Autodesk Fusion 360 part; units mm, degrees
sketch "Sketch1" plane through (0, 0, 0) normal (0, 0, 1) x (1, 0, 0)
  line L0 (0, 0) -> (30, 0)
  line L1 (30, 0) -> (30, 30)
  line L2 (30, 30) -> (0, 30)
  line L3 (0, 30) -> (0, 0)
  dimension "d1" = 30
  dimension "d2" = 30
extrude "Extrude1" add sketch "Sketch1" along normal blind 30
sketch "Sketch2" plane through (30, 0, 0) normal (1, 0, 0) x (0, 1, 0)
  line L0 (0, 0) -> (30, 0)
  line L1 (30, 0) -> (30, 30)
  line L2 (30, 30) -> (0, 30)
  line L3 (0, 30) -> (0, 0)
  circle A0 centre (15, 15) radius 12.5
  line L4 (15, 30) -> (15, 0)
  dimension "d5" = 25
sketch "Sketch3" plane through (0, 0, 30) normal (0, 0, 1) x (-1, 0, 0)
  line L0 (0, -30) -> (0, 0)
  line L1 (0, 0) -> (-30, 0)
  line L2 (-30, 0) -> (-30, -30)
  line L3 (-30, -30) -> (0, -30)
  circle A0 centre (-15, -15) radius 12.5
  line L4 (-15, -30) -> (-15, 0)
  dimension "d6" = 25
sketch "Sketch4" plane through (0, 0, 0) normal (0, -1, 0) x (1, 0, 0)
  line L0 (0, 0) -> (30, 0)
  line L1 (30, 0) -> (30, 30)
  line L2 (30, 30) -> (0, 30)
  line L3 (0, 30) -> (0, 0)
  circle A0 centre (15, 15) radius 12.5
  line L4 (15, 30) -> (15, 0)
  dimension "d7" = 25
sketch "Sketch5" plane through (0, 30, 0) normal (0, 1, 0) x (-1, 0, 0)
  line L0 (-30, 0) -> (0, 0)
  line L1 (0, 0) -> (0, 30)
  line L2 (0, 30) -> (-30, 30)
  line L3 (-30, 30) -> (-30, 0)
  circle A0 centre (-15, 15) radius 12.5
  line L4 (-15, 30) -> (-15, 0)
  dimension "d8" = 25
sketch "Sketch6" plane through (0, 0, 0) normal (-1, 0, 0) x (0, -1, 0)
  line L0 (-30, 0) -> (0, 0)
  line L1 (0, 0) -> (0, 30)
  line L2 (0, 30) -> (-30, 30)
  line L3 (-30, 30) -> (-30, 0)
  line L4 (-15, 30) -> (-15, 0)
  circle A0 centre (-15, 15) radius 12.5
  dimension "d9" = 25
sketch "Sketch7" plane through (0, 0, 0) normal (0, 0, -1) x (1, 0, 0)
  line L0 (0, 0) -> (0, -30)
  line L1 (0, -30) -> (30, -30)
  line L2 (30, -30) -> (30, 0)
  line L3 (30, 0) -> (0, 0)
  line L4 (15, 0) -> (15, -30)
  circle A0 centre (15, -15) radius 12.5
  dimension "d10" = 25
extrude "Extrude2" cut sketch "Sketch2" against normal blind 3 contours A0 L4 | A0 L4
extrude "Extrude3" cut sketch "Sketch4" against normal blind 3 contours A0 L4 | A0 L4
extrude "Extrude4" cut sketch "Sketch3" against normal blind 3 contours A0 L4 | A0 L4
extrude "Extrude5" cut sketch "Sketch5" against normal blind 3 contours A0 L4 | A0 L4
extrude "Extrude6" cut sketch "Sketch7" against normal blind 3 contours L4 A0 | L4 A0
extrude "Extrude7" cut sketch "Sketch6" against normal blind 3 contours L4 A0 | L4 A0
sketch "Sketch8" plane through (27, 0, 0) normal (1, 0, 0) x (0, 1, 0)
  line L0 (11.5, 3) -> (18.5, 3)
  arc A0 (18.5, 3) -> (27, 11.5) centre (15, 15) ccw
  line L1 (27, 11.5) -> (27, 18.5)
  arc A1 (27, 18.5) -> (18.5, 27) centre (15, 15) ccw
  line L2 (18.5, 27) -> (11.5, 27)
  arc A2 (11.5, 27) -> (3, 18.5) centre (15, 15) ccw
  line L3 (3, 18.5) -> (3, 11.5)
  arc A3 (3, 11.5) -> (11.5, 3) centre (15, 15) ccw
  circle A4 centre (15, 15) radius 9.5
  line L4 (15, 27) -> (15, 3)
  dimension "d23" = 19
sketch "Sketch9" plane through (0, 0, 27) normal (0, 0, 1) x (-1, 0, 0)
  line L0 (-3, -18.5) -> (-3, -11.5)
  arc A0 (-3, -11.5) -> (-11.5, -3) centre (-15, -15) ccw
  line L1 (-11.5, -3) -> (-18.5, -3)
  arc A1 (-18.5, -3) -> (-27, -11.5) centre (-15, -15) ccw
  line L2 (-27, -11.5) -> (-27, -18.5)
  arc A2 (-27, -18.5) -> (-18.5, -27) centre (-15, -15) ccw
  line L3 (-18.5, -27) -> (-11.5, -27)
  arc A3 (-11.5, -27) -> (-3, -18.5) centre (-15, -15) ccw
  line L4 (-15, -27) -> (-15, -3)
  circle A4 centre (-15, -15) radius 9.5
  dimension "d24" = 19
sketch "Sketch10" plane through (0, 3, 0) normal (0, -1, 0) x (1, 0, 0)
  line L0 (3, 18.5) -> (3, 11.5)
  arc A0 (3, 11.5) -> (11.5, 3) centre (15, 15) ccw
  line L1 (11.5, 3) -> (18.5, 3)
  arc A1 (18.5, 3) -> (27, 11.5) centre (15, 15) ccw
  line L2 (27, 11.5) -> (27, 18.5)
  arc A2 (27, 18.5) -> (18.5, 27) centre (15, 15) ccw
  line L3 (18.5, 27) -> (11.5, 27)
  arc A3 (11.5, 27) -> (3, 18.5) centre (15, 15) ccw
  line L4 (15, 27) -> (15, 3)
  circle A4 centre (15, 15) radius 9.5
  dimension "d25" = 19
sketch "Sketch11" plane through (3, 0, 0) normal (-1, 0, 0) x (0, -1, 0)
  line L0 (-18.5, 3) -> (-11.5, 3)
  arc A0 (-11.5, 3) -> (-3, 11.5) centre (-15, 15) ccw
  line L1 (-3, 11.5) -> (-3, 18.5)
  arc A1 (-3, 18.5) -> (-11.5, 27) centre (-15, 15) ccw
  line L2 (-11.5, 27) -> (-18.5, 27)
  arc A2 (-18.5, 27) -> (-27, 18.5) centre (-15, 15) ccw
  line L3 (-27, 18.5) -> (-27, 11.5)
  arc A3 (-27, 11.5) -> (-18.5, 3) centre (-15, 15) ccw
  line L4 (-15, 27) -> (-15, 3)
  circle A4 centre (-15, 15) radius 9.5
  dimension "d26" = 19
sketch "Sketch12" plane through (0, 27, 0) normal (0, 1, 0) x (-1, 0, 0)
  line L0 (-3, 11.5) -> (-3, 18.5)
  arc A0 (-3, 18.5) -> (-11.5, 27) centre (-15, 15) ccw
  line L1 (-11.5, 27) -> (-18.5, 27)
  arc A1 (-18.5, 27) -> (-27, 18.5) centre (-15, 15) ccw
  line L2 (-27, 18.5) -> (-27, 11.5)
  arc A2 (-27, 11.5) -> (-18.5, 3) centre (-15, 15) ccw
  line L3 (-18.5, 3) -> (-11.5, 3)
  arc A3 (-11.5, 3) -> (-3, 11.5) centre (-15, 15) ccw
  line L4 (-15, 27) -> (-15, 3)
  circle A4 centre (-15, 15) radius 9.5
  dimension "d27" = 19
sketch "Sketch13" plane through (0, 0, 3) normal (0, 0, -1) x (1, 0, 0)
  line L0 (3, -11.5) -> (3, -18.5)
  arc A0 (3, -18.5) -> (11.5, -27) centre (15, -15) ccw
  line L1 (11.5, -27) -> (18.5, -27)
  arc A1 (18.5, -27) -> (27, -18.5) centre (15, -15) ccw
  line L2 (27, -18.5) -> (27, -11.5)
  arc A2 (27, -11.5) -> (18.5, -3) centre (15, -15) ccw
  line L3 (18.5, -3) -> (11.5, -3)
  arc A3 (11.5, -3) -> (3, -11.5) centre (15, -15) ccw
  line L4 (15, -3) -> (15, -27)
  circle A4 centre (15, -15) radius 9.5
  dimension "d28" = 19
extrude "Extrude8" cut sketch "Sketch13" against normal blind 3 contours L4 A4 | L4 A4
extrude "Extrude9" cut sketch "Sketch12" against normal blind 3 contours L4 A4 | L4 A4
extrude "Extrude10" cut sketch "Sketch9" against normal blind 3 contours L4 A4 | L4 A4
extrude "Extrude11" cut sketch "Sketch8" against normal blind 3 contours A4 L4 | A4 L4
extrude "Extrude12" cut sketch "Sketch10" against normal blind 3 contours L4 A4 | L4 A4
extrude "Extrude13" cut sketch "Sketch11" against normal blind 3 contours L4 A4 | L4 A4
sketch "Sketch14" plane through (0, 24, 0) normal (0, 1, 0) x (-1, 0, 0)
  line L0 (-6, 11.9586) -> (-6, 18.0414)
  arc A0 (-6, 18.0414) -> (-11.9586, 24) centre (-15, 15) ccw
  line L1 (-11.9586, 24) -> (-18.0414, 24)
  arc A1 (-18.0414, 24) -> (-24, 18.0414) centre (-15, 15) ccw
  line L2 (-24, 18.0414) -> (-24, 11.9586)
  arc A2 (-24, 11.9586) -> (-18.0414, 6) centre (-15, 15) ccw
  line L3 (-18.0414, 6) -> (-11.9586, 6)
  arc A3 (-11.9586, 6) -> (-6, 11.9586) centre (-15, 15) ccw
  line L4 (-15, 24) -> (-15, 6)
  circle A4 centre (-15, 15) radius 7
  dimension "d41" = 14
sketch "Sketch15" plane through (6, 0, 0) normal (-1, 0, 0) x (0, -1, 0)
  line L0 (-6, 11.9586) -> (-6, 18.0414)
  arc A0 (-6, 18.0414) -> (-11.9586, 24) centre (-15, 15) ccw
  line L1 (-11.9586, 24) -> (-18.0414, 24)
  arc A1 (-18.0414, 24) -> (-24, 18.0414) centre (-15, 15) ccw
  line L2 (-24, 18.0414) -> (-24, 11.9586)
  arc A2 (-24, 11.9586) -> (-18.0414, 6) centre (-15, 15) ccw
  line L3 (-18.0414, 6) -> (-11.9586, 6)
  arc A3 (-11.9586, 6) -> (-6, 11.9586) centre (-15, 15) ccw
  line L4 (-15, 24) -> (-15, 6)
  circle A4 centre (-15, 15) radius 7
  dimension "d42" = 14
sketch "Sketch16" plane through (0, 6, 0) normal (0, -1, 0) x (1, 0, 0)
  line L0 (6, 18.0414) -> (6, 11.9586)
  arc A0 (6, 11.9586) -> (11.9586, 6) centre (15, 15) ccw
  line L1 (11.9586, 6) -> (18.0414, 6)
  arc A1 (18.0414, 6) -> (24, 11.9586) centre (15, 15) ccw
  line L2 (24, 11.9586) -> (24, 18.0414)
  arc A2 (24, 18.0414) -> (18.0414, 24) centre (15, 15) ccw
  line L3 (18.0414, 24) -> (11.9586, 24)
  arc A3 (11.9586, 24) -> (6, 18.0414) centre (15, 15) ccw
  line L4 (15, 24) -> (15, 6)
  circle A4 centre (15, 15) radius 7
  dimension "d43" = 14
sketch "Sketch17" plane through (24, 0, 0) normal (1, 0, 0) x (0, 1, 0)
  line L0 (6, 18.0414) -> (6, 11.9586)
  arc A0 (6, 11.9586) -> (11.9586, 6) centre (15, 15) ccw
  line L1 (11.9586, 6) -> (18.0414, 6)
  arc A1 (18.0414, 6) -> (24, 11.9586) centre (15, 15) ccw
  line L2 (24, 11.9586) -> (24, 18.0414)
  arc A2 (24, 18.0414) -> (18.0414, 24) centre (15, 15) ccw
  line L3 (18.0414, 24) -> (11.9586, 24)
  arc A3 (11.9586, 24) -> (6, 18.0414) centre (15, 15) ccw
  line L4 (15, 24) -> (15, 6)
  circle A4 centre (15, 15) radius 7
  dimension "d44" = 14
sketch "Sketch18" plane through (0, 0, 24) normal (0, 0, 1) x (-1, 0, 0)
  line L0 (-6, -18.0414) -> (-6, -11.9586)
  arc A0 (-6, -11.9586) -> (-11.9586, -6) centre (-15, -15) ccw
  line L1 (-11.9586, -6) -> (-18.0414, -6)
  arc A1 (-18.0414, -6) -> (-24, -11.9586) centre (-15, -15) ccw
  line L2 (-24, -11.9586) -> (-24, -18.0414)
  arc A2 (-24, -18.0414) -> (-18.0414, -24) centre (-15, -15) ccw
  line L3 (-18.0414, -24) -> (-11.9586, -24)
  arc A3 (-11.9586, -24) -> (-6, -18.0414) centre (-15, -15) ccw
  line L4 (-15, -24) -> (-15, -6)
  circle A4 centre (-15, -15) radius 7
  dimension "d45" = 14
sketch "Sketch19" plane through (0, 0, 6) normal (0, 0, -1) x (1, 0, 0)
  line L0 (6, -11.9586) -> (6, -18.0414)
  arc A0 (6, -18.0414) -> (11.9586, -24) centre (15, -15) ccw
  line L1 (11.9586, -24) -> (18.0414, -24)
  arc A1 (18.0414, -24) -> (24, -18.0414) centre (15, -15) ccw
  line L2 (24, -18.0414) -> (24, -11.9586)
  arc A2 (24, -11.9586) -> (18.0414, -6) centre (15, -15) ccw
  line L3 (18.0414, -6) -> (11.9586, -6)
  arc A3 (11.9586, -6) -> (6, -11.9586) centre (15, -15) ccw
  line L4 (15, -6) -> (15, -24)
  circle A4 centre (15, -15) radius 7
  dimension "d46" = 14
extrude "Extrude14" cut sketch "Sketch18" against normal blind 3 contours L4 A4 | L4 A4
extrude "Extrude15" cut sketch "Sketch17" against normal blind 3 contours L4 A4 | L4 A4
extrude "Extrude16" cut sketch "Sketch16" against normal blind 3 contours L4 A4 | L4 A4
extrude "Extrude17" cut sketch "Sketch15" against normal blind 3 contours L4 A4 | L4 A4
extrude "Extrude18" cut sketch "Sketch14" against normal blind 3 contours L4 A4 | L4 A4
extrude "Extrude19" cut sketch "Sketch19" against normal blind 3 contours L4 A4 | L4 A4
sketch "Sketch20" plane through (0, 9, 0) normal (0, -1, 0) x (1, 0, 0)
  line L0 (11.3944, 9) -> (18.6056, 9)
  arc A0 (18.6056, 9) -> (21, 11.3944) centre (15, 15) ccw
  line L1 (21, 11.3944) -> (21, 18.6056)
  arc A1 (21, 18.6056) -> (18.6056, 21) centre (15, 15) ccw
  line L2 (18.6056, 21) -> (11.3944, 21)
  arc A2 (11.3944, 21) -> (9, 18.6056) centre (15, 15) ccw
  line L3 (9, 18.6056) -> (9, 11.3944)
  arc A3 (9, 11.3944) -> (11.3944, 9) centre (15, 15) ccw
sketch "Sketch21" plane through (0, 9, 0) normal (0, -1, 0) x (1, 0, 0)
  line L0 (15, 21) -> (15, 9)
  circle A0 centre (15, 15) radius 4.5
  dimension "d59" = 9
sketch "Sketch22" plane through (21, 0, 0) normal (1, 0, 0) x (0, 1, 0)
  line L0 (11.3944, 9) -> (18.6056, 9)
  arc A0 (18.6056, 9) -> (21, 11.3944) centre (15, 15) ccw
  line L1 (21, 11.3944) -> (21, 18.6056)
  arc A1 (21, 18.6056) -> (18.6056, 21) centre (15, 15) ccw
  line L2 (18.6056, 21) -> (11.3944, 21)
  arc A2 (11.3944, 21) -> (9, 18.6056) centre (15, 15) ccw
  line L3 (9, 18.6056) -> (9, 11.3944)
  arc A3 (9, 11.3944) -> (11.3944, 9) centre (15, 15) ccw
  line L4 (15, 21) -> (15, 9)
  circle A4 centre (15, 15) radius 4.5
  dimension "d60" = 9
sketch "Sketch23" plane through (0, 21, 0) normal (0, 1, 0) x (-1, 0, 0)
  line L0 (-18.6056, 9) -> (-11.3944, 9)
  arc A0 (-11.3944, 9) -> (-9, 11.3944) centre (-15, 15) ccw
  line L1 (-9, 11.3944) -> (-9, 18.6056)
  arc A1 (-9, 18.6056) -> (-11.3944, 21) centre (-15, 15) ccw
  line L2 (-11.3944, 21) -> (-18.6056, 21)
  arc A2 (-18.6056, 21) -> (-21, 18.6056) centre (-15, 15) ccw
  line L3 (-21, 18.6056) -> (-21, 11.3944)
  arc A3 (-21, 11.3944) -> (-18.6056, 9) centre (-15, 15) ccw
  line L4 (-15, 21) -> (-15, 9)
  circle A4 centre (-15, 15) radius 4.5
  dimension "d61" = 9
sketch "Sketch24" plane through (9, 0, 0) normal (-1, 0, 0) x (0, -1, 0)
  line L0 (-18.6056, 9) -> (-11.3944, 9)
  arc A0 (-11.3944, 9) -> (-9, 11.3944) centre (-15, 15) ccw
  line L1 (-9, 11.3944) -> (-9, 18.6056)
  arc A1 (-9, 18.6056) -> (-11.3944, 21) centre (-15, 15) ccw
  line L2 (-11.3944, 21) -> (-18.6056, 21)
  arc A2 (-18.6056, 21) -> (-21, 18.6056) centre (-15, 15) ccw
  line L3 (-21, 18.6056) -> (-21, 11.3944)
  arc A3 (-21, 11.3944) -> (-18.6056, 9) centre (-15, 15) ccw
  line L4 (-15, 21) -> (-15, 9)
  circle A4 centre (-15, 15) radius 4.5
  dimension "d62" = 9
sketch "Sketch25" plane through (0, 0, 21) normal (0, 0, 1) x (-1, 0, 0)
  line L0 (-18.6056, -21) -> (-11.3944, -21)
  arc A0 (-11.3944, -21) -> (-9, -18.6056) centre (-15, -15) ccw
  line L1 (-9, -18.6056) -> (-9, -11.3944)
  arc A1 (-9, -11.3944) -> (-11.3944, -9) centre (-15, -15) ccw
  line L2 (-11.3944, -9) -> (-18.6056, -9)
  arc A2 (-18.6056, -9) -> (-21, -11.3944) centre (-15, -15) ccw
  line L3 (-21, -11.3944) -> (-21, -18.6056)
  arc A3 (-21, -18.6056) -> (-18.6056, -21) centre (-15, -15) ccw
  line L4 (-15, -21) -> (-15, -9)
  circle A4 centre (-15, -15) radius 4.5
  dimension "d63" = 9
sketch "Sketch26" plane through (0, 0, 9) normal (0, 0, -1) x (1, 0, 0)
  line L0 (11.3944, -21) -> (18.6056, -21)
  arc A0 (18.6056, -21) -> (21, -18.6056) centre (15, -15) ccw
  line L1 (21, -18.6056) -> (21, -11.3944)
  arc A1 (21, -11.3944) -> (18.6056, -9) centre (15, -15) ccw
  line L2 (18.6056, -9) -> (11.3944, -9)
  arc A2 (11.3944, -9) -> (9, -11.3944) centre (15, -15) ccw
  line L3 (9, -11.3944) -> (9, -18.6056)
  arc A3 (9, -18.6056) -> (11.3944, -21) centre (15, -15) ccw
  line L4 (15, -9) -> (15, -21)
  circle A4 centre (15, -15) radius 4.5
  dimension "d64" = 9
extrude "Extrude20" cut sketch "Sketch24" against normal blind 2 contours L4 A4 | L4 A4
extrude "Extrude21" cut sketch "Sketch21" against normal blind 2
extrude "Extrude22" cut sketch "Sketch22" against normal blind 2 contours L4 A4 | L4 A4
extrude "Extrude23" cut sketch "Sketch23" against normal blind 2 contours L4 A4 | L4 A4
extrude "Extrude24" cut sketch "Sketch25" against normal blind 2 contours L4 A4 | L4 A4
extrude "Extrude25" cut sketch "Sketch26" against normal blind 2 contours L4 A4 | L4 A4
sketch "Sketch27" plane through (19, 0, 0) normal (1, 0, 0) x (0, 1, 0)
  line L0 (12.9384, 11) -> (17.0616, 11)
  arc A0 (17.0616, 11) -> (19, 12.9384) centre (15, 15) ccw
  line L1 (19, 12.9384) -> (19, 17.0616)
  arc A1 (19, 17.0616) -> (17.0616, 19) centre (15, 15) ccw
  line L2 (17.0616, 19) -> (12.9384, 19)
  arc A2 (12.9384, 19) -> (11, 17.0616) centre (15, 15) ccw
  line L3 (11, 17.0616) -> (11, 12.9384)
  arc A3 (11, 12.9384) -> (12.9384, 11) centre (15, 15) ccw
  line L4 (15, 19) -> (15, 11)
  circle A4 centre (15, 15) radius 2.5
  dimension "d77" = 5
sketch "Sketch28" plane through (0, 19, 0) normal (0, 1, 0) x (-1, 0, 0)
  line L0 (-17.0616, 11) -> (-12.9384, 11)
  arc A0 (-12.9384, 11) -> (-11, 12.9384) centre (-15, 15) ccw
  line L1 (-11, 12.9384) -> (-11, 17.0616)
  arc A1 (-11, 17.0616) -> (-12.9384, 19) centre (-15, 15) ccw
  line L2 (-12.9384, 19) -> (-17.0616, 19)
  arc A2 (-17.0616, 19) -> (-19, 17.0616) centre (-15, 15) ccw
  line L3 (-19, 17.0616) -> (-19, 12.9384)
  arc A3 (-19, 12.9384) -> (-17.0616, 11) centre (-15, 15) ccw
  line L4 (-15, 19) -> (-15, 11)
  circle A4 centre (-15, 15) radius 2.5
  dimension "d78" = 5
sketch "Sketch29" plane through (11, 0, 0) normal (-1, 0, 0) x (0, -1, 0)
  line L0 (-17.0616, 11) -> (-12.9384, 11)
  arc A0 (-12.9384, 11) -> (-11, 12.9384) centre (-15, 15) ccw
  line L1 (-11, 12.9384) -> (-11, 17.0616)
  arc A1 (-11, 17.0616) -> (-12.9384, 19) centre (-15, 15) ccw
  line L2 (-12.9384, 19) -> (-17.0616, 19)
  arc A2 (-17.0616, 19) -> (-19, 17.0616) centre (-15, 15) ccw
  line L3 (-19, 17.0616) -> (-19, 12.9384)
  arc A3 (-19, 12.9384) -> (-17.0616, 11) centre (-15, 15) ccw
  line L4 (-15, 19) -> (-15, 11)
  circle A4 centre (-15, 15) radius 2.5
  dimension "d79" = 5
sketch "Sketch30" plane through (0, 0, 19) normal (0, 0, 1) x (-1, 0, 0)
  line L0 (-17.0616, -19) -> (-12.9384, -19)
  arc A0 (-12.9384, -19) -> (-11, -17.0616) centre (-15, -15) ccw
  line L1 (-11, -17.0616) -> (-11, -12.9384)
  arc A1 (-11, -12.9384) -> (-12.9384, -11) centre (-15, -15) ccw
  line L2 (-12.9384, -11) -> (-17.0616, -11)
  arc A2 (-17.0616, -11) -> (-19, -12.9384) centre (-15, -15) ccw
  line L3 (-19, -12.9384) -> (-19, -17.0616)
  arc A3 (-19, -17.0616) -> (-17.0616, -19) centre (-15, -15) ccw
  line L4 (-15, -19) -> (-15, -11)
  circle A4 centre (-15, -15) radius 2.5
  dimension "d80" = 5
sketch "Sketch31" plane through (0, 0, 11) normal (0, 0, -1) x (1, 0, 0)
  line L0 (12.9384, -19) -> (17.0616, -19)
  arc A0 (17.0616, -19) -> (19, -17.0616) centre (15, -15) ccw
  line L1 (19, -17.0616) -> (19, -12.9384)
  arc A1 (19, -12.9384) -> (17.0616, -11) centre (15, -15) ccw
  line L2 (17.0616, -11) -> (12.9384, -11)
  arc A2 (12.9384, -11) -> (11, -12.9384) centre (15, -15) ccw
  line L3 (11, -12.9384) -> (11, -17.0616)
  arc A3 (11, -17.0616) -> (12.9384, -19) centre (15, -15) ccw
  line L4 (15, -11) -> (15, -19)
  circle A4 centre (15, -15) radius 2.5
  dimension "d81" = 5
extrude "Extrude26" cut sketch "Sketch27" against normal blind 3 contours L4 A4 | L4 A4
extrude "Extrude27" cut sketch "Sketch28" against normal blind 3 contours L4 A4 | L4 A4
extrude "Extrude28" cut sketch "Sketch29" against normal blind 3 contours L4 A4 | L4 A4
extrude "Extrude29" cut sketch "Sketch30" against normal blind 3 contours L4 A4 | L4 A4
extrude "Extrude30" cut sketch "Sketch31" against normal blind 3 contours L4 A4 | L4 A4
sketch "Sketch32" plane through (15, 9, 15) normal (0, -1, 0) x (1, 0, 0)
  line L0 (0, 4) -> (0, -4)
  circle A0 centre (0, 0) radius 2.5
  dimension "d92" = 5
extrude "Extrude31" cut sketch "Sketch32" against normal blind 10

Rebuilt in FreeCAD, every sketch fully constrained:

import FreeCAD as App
import Part
import Sketcher
from FreeCAD import Vector

doc = App.newDocument("Part")
body = doc.addObject("PartDesign::Body", "Body")

# Sketch on XY plane
sketch1 = body.newObject("Sketcher::SketchObject", "Sketch")
sketch1.AttachmentSupport = (doc.getObject("XY_Plane"), [""])
sketch1.MapMode = "FlatFace"
sketch1.addGeometry([
    Part.LineSegment(Vector(0, 30, 0), Vector(0, 0, 0)),
    Part.LineSegment(Vector(0, 0, 0), Vector(30, 0, 0)),
    Part.LineSegment(Vector(30, 0, 0), Vector(30, 30, 0)),
    Part.LineSegment(Vector(30, 30, 0), Vector(0, 30, 0)),
], False)
sketch1.addConstraint([
    Sketcher.Constraint("Coincident", 0, 2, 1, 1),
    Sketcher.Constraint("Coincident", 1, 2, 2, 1),
    Sketcher.Constraint("Coincident", 2, 2, 3, 1),
    Sketcher.Constraint("Coincident", 3, 2, 0, 1),
    Sketcher.Constraint("Vertical", 0),
    Sketcher.Constraint("Horizontal", 1),
    Sketcher.Constraint("Vertical", 2),
    Sketcher.Constraint("Horizontal", 3),
    Sketcher.Constraint("Coincident", 0, 2, -1, 1),
    Sketcher.Constraint("Equal", 3, 0),
    Sketcher.Constraint("DistanceX", 1, 1, 1, 2, 30.0),
])
pad1 = body.newObject("PartDesign::Pad", "Pad")
pad1.Profile = sketch1
pad1.Length = 30

# Sketch on YZ plane
sketch2 = body.newObject("Sketcher::SketchObject", "Sketch001")
sketch2.AttachmentSupport = (doc.getObject("YZ_Plane"), [""])
sketch2.MapMode = "FlatFace"
sketch2.AttachmentOffset = App.Placement(Vector(0, 0, 30), App.Rotation())
sketch2.addGeometry(Part.Circle(Vector(15, 15, 0), Vector(0, 0, 1), 12), False)
sketch2.addConstraint([
    Sketcher.Constraint("Diameter", 0, 25.0),
    Sketcher.Constraint("DistanceX", -1, 1, 0, 3, 15.0),
    Sketcher.Constraint("DistanceY", -1, 1, 0, 3, 15.0),
])
pocket1 = body.newObject("PartDesign::Pocket", "Pocket")
pocket1.Profile = sketch2
pocket1.Length = 3

# Sketch on XZ plane
sketch3 = body.newObject("Sketcher::SketchObject", "Sketch002")
sketch3.AttachmentSupport = (doc.getObject("XZ_Plane"), [""])
sketch3.MapMode = "FlatFace"
sketch3.addGeometry(Part.Circle(Vector(15, 15, 0), Vector(0, 0, 1), 12), False)
sketch3.addConstraint([
    Sketcher.Constraint("Diameter", 0, 25.0),
    Sketcher.Constraint("DistanceX", -1, 1, 0, 3, 15.0),
    Sketcher.Constraint("DistanceY", -1, 1, 0, 3, 15.0),
])
pocket2 = body.newObject("PartDesign::Pocket", "Pocket001")
pocket2.Profile = sketch3
pocket2.Length = 3

# Sketch on XY plane
sketch4 = body.newObject("Sketcher::SketchObject", "Sketch003")
sketch4.AttachmentSupport = (doc.getObject("XY_Plane"), [""])
sketch4.MapMode = "FlatFace"
sketch4.AttachmentOffset = App.Placement(Vector(0, 0, 30), App.Rotation())
sketch4.addGeometry(Part.Circle(Vector(15, 15, 0), Vector(0, 0, 1), 12), False)
sketch4.addConstraint([
    Sketcher.Constraint("Diameter", 0, 25.0),
    Sketcher.Constraint("DistanceX", -1, 1, 0, 3, 15.0),
    Sketcher.Constraint("DistanceY", -1, 1, 0, 3, 15.0),
])
pocket3 = body.newObject("PartDesign::Pocket", "Pocket002")
pocket3.Profile = sketch4
pocket3.Length = 3

# Sketch on XZ plane
sketch5 = body.newObject("Sketcher::SketchObject", "Sketch004")
sketch5.AttachmentSupport = (doc.getObject("XZ_Plane"), [""])
sketch5.MapMode = "FlatFace"
sketch5.AttachmentOffset = App.Placement(Vector(0, 0, -30), App.Rotation())
sketch5.addGeometry(Part.Circle(Vector(15, 15, 0), Vector(0, 0, 1), 12), False)
sketch5.addConstraint([
    Sketcher.Constraint("Diameter", 0, 25.0),
    Sketcher.Constraint("DistanceX", -1, 1, 0, 3, 15.0),
    Sketcher.Constraint("DistanceY", -1, 1, 0, 3, 15.0),
])
pocket4 = body.newObject("PartDesign::Pocket", "Pocket003")
pocket4.Profile = sketch5
pocket4.Length = 3
pocket4.Reversed = True

# Sketch on XY plane
sketch6 = body.newObject("Sketcher::SketchObject", "Sketch005")
sketch6.AttachmentSupport = (doc.getObject("XY_Plane"), [""])
sketch6.MapMode = "FlatFace"
sketch6.addGeometry(Part.Circle(Vector(15, 15, 0), Vector(0, 0, 1), 12), False)
sketch6.addConstraint([
    Sketcher.Constraint("Diameter", 0, 25.0),
    Sketcher.Constraint("DistanceX", -1, 1, 0, 3, 15.0),
    Sketcher.Constraint("DistanceY", -1, 1, 0, 3, 15.0),
])
pocket5 = body.newObject("PartDesign::Pocket", "Pocket004")
pocket5.Profile = sketch6
pocket5.Length = 3
pocket5.Reversed = True

# Sketch on YZ plane
sketch7 = body.newObject("Sketcher::SketchObject", "Sketch006")
sketch7.AttachmentSupport = (doc.getObject("YZ_Plane"), [""])
sketch7.MapMode = "FlatFace"
sketch7.addGeometry(Part.Circle(Vector(15, 15, 0), Vector(0, 0, 1), 12), False)
sketch7.addConstraint([
    Sketcher.Constraint("Diameter", 0, 25.0),
    Sketcher.Constraint("DistanceX", -1, 1, 0, 3, 15.0),
    Sketcher.Constraint("DistanceY", -1, 1, 0, 3, 15.0),
])
pocket6 = body.newObject("PartDesign::Pocket", "Pocket005")
pocket6.Profile = sketch7
pocket6.Length = 3
pocket6.Reversed = True

# Sketch on XY plane
sketch8 = body.newObject("Sketcher::SketchObject", "Sketch007")
sketch8.AttachmentSupport = (doc.getObject("XY_Plane"), [""])
sketch8.MapMode = "FlatFace"
sketch8.AttachmentOffset = App.Placement(Vector(0, 0, 3), App.Rotation())
sketch8.addGeometry(Part.Circle(Vector(15, 15, 0), Vector(0, 0, 1), 10), False)
sketch8.addConstraint([
    Sketcher.Constraint("Diameter", 0, 19.0),
    Sketcher.Constraint("DistanceX", -1, 1, 0, 3, 15.0),
    Sketcher.Constraint("DistanceY", -1, 1, 0, 3, 15.0),
])
pocket7 = body.newObject("PartDesign::Pocket", "Pocket006")
pocket7.Profile = sketch8
pocket7.Length = 3
pocket7.Reversed = True

# Sketch on XZ plane
sketch9 = body.newObject("Sketcher::SketchObject", "Sketch008")
sketch9.AttachmentSupport = (doc.getObject("XZ_Plane"), [""])
sketch9.MapMode = "FlatFace"
sketch9.AttachmentOffset = App.Placement(Vector(0, 0, -27), App.Rotation())
sketch9.addGeometry(Part.Circle(Vector(15, 15, 0), Vector(0, 0, 1), 10), False)
sketch9.addConstraint([
    Sketcher.Constraint("Diameter", 0, 19.0),
    Sketcher.Constraint("DistanceX", -1, 1, 0, 3, 15.0),
    Sketcher.Constraint("DistanceY", -1, 1, 0, 3, 15.0),
])
pocket8 = body.newObject("PartDesign::Pocket", "Pocket007")
pocket8.Profile = sketch9
pocket8.Length = 3
pocket8.Reversed = True

# Sketch on XY plane
sketch10 = body.newObject("Sketcher::SketchObject", "Sketch009")
sketch10.AttachmentSupport = (doc.getObject("XY_Plane"), [""])
sketch10.MapMode = "FlatFace"
sketch10.AttachmentOffset = App.Placement(Vector(0, 0, 27), App.Rotation())
sketch10.addGeometry(Part.Circle(Vector(15, 15, 0), Vector(0, 0, 1), 10), False)
sketch10.addConstraint([
    Sketcher.Constraint("Diameter", 0, 19.0),
    Sketcher.Constraint("DistanceX", -1, 1, 0, 3, 15.0),
    Sketcher.Constraint("DistanceY", -1, 1, 0, 3, 15.0),
])
pocket9 = body.newObject("PartDesign::Pocket", "Pocket008")
pocket9.Profile = sketch10
pocket9.Length = 3

# Sketch on YZ plane
sketch11 = body.newObject("Sketcher::SketchObject", "Sketch010")
sketch11.AttachmentSupport = (doc.getObject("YZ_Plane"), [""])
sketch11.MapMode = "FlatFace"
sketch11.AttachmentOffset = App.Placement(Vector(0, 0, 27), App.Rotation())
sketch11.addGeometry(Part.Circle(Vector(15, 15, 0), Vector(0, 0, 1), 10), False)
sketch11.addConstraint([
    Sketcher.Constraint("Diameter", 0, 19.0),
    Sketcher.Constraint("DistanceX", -1, 1, 0, 3, 15.0),
    Sketcher.Constraint("DistanceY", -1, 1, 0, 3, 15.0),
])
pocket10 = body.newObject("PartDesign::Pocket", "Pocket009")
pocket10.Profile = sketch11
pocket10.Length = 3

# Sketch on XZ plane
sketch12 = body.newObject("Sketcher::SketchObject", "Sketch011")
sketch12.AttachmentSupport = (doc.getObject("XZ_Plane"), [""])
sketch12.MapMode = "FlatFace"
sketch12.AttachmentOffset = App.Placement(Vector(0, 0, -3), App.Rotation())
sketch12.addGeometry(Part.Circle(Vector(15, 15, 0), Vector(0, 0, 1), 10), False)
sketch12.addConstraint([
    Sketcher.Constraint("Diameter", 0, 19.0),
    Sketcher.Constraint("DistanceX", -1, 1, 0, 3, 15.0),
    Sketcher.Constraint("DistanceY", -1, 1, 0, 3, 15.0),
])
pocket11 = body.newObject("PartDesign::Pocket", "Pocket010")
pocket11.Profile = sketch12
pocket11.Length = 3

# Sketch on YZ plane
sketch13 = body.newObject("Sketcher::SketchObject", "Sketch012")
sketch13.AttachmentSupport = (doc.getObject("YZ_Plane"), [""])
sketch13.MapMode = "FlatFace"
sketch13.AttachmentOffset = App.Placement(Vector(0, 0, 3), App.Rotation())
sketch13.addGeometry(Part.Circle(Vector(15, 15, 0), Vector(0, 0, 1), 10), False)
sketch13.addConstraint([
    Sketcher.Constraint("Diameter", 0, 19.0),
    Sketcher.Constraint("DistanceX", -1, 1, 0, 3, 15.0),
    Sketcher.Constraint("DistanceY", -1, 1, 0, 3, 15.0),
])
pocket12 = body.newObject("PartDesign::Pocket", "Pocket011")
pocket12.Profile = sketch13
pocket12.Length = 3
pocket12.Reversed = True

# Sketch on XY plane
sketch14 = body.newObject("Sketcher::SketchObject", "Sketch013")
sketch14.AttachmentSupport = (doc.getObject("XY_Plane"), [""])
sketch14.MapMode = "FlatFace"
sketch14.AttachmentOffset = App.Placement(Vector(0, 0, 24), App.Rotation())
sketch14.addGeometry(Part.Circle(Vector(15, 15, 0), Vector(0, 0, 1), 7), False)
sketch14.addConstraint([
    Sketcher.Constraint("Diameter", 0, 14.0),
    Sketcher.Constraint("DistanceX", -1, 1, 0, 3, 15.0),
    Sketcher.Constraint("DistanceY", -1, 1, 0, 3, 15.0),
])
pocket13 = body.newObject("PartDesign::Pocket", "Pocket012")
pocket13.Profile = sketch14
pocket13.Length = 3

# Sketch on YZ plane
sketch15 = body.newObject("Sketcher::SketchObject", "Sketch014")
sketch15.AttachmentSupport = (doc.getObject("YZ_Plane"), [""])
sketch15.MapMode = "FlatFace"
sketch15.AttachmentOffset = App.Placement(Vector(0, 0, 24), App.Rotation())
sketch15.addGeometry(Part.Circle(Vector(15, 15, 0), Vector(0, 0, 1), 7), False)
sketch15.addConstraint([
    Sketcher.Constraint("Diameter", 0, 14.0),
    Sketcher.Constraint("DistanceX", -1, 1, 0, 3, 15.0),
    Sketcher.Constraint("DistanceY", -1, 1, 0, 3, 15.0),
])
pocket14 = body.newObject("PartDesign::Pocket", "Pocket013")
pocket14.Profile = sketch15
pocket14.Length = 3

# Sketch on XZ plane
sketch16 = body.newObject("Sketcher::SketchObject", "Sketch015")
sketch16.AttachmentSupport = (doc.getObject("XZ_Plane"), [""])
sketch16.MapMode = "FlatFace"
sketch16.AttachmentOffset = App.Placement(Vector(0, 0, -6), App.Rotation())
sketch16.addGeometry(Part.Circle(Vector(15, 15, 0), Vector(0, 0, 1), 7), False)
sketch16.addConstraint([
    Sketcher.Constraint("Diameter", 0, 14.0),
    Sketcher.Constraint("DistanceX", -1, 1, 0, 3, 15.0),
    Sketcher.Constraint("DistanceY", -1, 1, 0, 3, 15.0),
])
pocket15 = body.newObject("PartDesign::Pocket", "Pocket014")
pocket15.Profile = sketch16
pocket15.Length = 3

# Sketch on YZ plane
sketch17 = body.newObject("Sketcher::SketchObject", "Sketch016")
sketch17.AttachmentSupport = (doc.getObject("YZ_Plane"), [""])
sketch17.MapMode = "FlatFace"
sketch17.AttachmentOffset = App.Placement(Vector(0, 0, 6), App.Rotation())
sketch17.addGeometry(Part.Circle(Vector(15, 15, 0), Vector(0, 0, 1), 7), False)
sketch17.addConstraint([
    Sketcher.Constraint("Diameter", 0, 14.0),
    Sketcher.Constraint("DistanceX", -1, 1, 0, 3, 15.0),
    Sketcher.Constraint("DistanceY", -1, 1, 0, 3, 15.0),
])
pocket16 = body.newObject("PartDesign::Pocket", "Pocket015")
pocket16.Profile = sketch17
pocket16.Length = 3
pocket16.Reversed = True

# Sketch on XZ plane
sketch18 = body.newObject("Sketcher::SketchObject", "Sketch017")
sketch18.AttachmentSupport = (doc.getObject("XZ_Plane"), [""])
sketch18.MapMode = "FlatFace"
sketch18.AttachmentOffset = App.Placement(Vector(0, 0, -24), App.Rotation())
sketch18.addGeometry(Part.Circle(Vector(15, 15, 0), Vector(0, 0, 1), 7), False)
sketch18.addConstraint([
    Sketcher.Constraint("Diameter", 0, 14.0),
    Sketcher.Constraint("DistanceX", -1, 1, 0, 3, 15.0),
    Sketcher.Constraint("DistanceY", -1, 1, 0, 3, 15.0),
])
pocket17 = body.newObject("PartDesign::Pocket", "Pocket016")
pocket17.Profile = sketch18
pocket17.Length = 3
pocket17.Reversed = True

# Sketch on XY plane
sketch19 = body.newObject("Sketcher::SketchObject", "Sketch018")
sketch19.AttachmentSupport = (doc.getObject("XY_Plane"), [""])
sketch19.MapMode = "FlatFace"
sketch19.AttachmentOffset = App.Placement(Vector(0, 0, 6), App.Rotation())
sketch19.addGeometry(Part.Circle(Vector(15, 15, 0), Vector(0, 0, 1), 7), False)
sketch19.addConstraint([
    Sketcher.Constraint("Diameter", 0, 14.0),
    Sketcher.Constraint("DistanceX", -1, 1, 0, 3, 15.0),
    Sketcher.Constraint("DistanceY", -1, 1, 0, 3, 15.0),
])
pocket18 = body.newObject("PartDesign::Pocket", "Pocket017")
pocket18.Profile = sketch19
pocket18.Length = 3
pocket18.Reversed = True

# Sketch on YZ plane
sketch20 = body.newObject("Sketcher::SketchObject", "Sketch019")
sketch20.AttachmentSupport = (doc.getObject("YZ_Plane"), [""])
sketch20.MapMode = "FlatFace"
sketch20.AttachmentOffset = App.Placement(Vector(0, 0, 9), App.Rotation())
sketch20.addGeometry(Part.Circle(Vector(15, 15, 0), Vector(0, 0, 1), 4.5), False)
sketch20.addConstraint([
    Sketcher.Constraint("Diameter", 0, 9.0),
    Sketcher.Constraint("DistanceX", -1, 1, 0, 3, 15.0),
    Sketcher.Constraint("DistanceY", -1, 1, 0, 3, 15.0),
])
pocket19 = body.newObject("PartDesign::Pocket", "Pocket018")
pocket19.Profile = sketch20
pocket19.Length = 2
pocket19.Reversed = True

# Sketch on XZ plane
sketch21 = body.newObject("Sketcher::SketchObject", "Sketch020")
sketch21.AttachmentSupport = (doc.getObject("XZ_Plane"), [""])
sketch21.MapMode = "FlatFace"
sketch21.AttachmentOffset = App.Placement(Vector(0, 0, -9), App.Rotation())
sketch21.addGeometry(Part.Circle(Vector(15, 15, 0), Vector(0, 0, 1), 4.5), False)
sketch21.addConstraint([
    Sketcher.Constraint("Diameter", 0, 9.0),
    Sketcher.Constraint("DistanceX", -1, 1, 0, 3, 15.0),
    Sketcher.Constraint("DistanceY", -1, 1, 0, 3, 15.0),
])
pocket20 = body.newObject("PartDesign::Pocket", "Pocket019")
pocket20.Profile = sketch21
pocket20.Length = 2

# Sketch on YZ plane
sketch22 = body.newObject("Sketcher::SketchObject", "Sketch021")
sketch22.AttachmentSupport = (doc.getObject("YZ_Plane"), [""])
sketch22.MapMode = "FlatFace"
sketch22.AttachmentOffset = App.Placement(Vector(0, 0, 21), App.Rotation())
sketch22.addGeometry(Part.Circle(Vector(15, 15, 0), Vector(0, 0, 1), 4.5), False)
sketch22.addConstraint([
    Sketcher.Constraint("Diameter", 0, 9.0),
    Sketcher.Constraint("DistanceX", -1, 1, 0, 3, 15.0),
    Sketcher.Constraint("DistanceY", -1, 1, 0, 3, 15.0),
])
pocket21 = body.newObject("PartDesign::Pocket", "Pocket020")
pocket21.Profile = sketch22
pocket21.Length = 2

# Sketch on XZ plane
sketch23 = body.newObject("Sketcher::SketchObject", "Sketch022")
sketch23.AttachmentSupport = (doc.getObject("XZ_Plane"), [""])
sketch23.MapMode = "FlatFace"
sketch23.AttachmentOffset = App.Placement(Vector(0, 0, -21), App.Rotation())
sketch23.addGeometry(Part.Circle(Vector(15, 15, 0), Vector(0, 0, 1), 4.5), False)
sketch23.addConstraint([
    Sketcher.Constraint("Diameter", 0, 9.0),
    Sketcher.Constraint("DistanceX", -1, 1, 0, 3, 15.0),
    Sketcher.Constraint("DistanceY", -1, 1, 0, 3, 15.0),
])
pocket22 = body.newObject("PartDesign::Pocket", "Pocket021")
pocket22.Profile = sketch23
pocket22.Length = 2
pocket22.Reversed = True

# Sketch on XY plane
sketch24 = body.newObject("Sketcher::SketchObject", "Sketch023")
sketch24.AttachmentSupport = (doc.getObject("XY_Plane"), [""])
sketch24.MapMode = "FlatFace"
sketch24.AttachmentOffset = App.Placement(Vector(0, 0, 21), App.Rotation())
sketch24.addGeometry(Part.Circle(Vector(15, 15, 0), Vector(0, 0, 1), 4.5), False)
sketch24.addConstraint([
    Sketcher.Constraint("Diameter", 0, 9.0),
    Sketcher.Constraint("DistanceX", -1, 1, 0, 3, 15.0),
    Sketcher.Constraint("DistanceY", -1, 1, 0, 3, 15.0),
])
pocket23 = body.newObject("PartDesign::Pocket", "Pocket022")
pocket23.Profile = sketch24
pocket23.Length = 2

# Sketch on XY plane
sketch25 = body.newObject("Sketcher::SketchObject", "Sketch024")
sketch25.AttachmentSupport = (doc.getObject("XY_Plane"), [""])
sketch25.MapMode = "FlatFace"
sketch25.AttachmentOffset = App.Placement(Vector(0, 0, 9), App.Rotation())
sketch25.addGeometry(Part.Circle(Vector(15, 15, 0), Vector(0, 0, 1), 4.5), False)
sketch25.addConstraint([
    Sketcher.Constraint("Diameter", 0, 9.0),
    Sketcher.Constraint("DistanceX", -1, 1, 0, 3, 15.0),
    Sketcher.Constraint("DistanceY", -1, 1, 0, 3, 15.0),
])
pocket24 = body.newObject("PartDesign::Pocket", "Pocket023")
pocket24.Profile = sketch25
pocket24.Length = 2
pocket24.Reversed = True

# Sketch on YZ plane
sketch26 = body.newObject("Sketcher::SketchObject", "Sketch025")
sketch26.AttachmentSupport = (doc.getObject("YZ_Plane"), [""])
sketch26.MapMode = "FlatFace"
sketch26.AttachmentOffset = App.Placement(Vector(0, 0, 19), App.Rotation())
sketch26.addGeometry(Part.Circle(Vector(15, 15, 0), Vector(0, 0, 1), 2.5), False)
sketch26.addConstraint([
    Sketcher.Constraint("Diameter", 0, 5.0),
    Sketcher.Constraint("DistanceX", -1, 1, 0, 3, 15.0),
    Sketcher.Constraint("DistanceY", -1, 1, 0, 3, 15.0),
])
pocket25 = body.newObject("PartDesign::Pocket", "Pocket024")
pocket25.Profile = sketch26
pocket25.Length = 3

# Sketch on XZ plane
sketch27 = body.newObject("Sketcher::SketchObject", "Sketch026")
sketch27.AttachmentSupport = (doc.getObject("XZ_Plane"), [""])
sketch27.MapMode = "FlatFace"
sketch27.AttachmentOffset = App.Placement(Vector(0, 0, -19), App.Rotation())
sketch27.addGeometry(Part.Circle(Vector(15, 15, 0), Vector(0, 0, 1), 2.5), False)
sketch27.addConstraint([
    Sketcher.Constraint("Diameter", 0, 5.0),
    Sketcher.Constraint("DistanceX", -1, 1, 0, 3, 15.0),
    Sketcher.Constraint("DistanceY", -1, 1, 0, 3, 15.0),
])
pocket26 = body.newObject("PartDesign::Pocket", "Pocket025")
pocket26.Profile = sketch27
pocket26.Length = 3
pocket26.Reversed = True

# Sketch on YZ plane
sketch28 = body.newObject("Sketcher::SketchObject", "Sketch027")
sketch28.AttachmentSupport = (doc.getObject("YZ_Plane"), [""])
sketch28.MapMode = "FlatFace"
sketch28.AttachmentOffset = App.Placement(Vector(0, 0, 11), App.Rotation())
sketch28.addGeometry(Part.Circle(Vector(15, 15, 0), Vector(0, 0, 1), 2.5), False)
sketch28.addConstraint([
    Sketcher.Constraint("Diameter", 0, 5.0),
    Sketcher.Constraint("DistanceX", -1, 1, 0, 3, 15.0),
    Sketcher.Constraint("DistanceY", -1, 1, 0, 3, 15.0),
])
pocket27 = body.newObject("PartDesign::Pocket", "Pocket026")
pocket27.Profile = sketch28
pocket27.Length = 3
pocket27.Reversed = True

# Sketch on XY plane
sketch29 = body.newObject("Sketcher::SketchObject", "Sketch028")
sketch29.AttachmentSupport = (doc.getObject("XY_Plane"), [""])
sketch29.MapMode = "FlatFace"
sketch29.AttachmentOffset = App.Placement(Vector(0, 0, 19), App.Rotation())
sketch29.addGeometry(Part.Circle(Vector(15, 15, 0), Vector(0, 0, 1), 2.5), False)
sketch29.addConstraint([
    Sketcher.Constraint("Diameter", 0, 5.0),
    Sketcher.Constraint("DistanceX", -1, 1, 0, 3, 15.0),
    Sketcher.Constraint("DistanceY", -1, 1, 0, 3, 15.0),
])
pocket28 = body.newObject("PartDesign::Pocket", "Pocket027")
pocket28.Profile = sketch29
pocket28.Length = 3

# Sketch on XY plane
sketch30 = body.newObject("Sketcher::SketchObject", "Sketch029")
sketch30.AttachmentSupport = (doc.getObject("XY_Plane"), [""])
sketch30.MapMode = "FlatFace"
sketch30.AttachmentOffset = App.Placement(Vector(0, 0, 11), App.Rotation())
sketch30.addGeometry(Part.Circle(Vector(15, 15, 0), Vector(0, 0, 1), 2.5), False)
sketch30.addConstraint([
    Sketcher.Constraint("Diameter", 0, 5.0),
    Sketcher.Constraint("DistanceX", -1, 1, 0, 3, 15.0),
    Sketcher.Constraint("DistanceY", -1, 1, 0, 3, 15.0),
])
pocket29 = body.newObject("PartDesign::Pocket", "Pocket028")
pocket29.Profile = sketch30
pocket29.Length = 3
pocket29.Reversed = True

# Sketch on XZ plane
sketch31 = body.newObject("Sketcher::SketchObject", "Sketch030")
sketch31.AttachmentSupport = (doc.getObject("XZ_Plane"), [""])
sketch31.MapMode = "FlatFace"
sketch31.AttachmentOffset = App.Placement(Vector(0, 0, -9), App.Rotation())
sketch31.addGeometry(Part.Circle(Vector(15, 15, 0), Vector(0, 0, 1), 2.5), False)
sketch31.addConstraint([
    Sketcher.Constraint("Diameter", 0, 5.0),
    Sketcher.Constraint("DistanceX", -1, 1, 0, 3, 15.0),
    Sketcher.Constraint("DistanceY", -1, 1, 0, 3, 15.0),
])
pocket30 = body.newObject("PartDesign::Pocket", "Pocket029")
pocket30.Profile = sketch31
pocket30.Length = 10

doc.recompute()
